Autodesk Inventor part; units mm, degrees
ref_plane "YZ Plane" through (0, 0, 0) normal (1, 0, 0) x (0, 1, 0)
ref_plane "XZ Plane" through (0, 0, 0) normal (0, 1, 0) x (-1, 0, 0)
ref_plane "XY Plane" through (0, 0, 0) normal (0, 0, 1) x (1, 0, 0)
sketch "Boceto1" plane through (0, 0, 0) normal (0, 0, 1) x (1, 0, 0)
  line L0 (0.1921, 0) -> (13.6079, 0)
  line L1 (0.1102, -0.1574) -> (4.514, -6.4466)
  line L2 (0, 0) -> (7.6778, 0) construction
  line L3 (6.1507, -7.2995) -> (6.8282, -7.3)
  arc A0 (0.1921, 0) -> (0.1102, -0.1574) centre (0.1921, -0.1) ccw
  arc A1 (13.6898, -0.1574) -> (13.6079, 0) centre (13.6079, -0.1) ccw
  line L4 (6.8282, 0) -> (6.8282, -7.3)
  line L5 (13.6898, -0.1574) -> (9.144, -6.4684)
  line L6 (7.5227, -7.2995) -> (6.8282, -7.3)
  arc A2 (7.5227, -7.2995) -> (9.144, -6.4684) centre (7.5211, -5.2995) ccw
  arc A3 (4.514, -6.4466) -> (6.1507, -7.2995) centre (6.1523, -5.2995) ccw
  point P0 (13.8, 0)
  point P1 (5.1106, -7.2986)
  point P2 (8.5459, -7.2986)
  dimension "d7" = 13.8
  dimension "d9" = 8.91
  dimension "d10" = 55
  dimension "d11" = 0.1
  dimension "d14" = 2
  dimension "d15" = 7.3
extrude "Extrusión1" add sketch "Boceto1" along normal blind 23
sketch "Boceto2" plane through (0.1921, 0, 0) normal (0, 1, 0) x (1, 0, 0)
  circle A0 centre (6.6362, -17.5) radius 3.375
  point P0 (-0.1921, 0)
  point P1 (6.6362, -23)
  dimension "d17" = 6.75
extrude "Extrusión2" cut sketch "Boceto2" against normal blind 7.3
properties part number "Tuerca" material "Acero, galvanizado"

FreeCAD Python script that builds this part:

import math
import FreeCAD as App
import Part
import Sketcher

V = App.Vector
Q = App.Units.Quantity

doc = App.newDocument("Part")
body = doc.addObject("PartDesign::Body", "Body")

sketch1 = body.newObject("Sketcher::SketchObject", "Sketch")
sketch1.AttachmentSupport = (doc.getObject("XY_Plane"), [""])
sketch1.MapMode = "FlatFace"
sketch1.addGeometry([
    Part.ArcOfCircle(Part.Circle(V(0.19, -0.1, 0), V(0, 0, 1), 0.1), math.radians(90), math.radians(215)),
    Part.LineSegment(V(0.11, -0.16, 0), V(4.51, -6.45, 0)),
    Part.ArcOfCircle(Part.Circle(V(6.15, -5.3, 0), V(0, 0, 1), 2), math.radians(-145), math.radians(-90)),
    Part.LineSegment(V(6.15, -7.3, 0), V(6.83, -7.3, 0)),
    Part.LineSegment(V(6.83, -7.3, 0), V(7.52, -7.3, 0)),
    Part.ArcOfCircle(Part.Circle(V(7.52, -5.3, 0), V(0, 0, 1), 2), math.radians(-90), math.radians(-36)),
    Part.LineSegment(V(9.14, -6.47, 0), V(13.69, -0.16, 0)),
    Part.ArcOfCircle(Part.Circle(V(13.61, -0.1, 0), V(0, 0, 1), 0.1), math.radians(-35), math.radians(90)),
    Part.LineSegment(V(13.61, 0, 0), V(0.19, 0, 0)),
], False)
sketch1.addConstraint([
    Sketcher.Constraint("Tangent", 0, 2, 1, 1),
    Sketcher.Constraint("Tangent", 1, 2, 2, 1),
    Sketcher.Constraint("Tangent", 2, 2, 3, 1),
    Sketcher.Constraint("Coincident", 3, 2, 4, 1),
    Sketcher.Constraint("Tangent", 4, 2, 5, 1),
    Sketcher.Constraint("Tangent", 5, 2, 6, 1),
    Sketcher.Constraint("Coincident", 6, 2, 7, 1),
    Sketcher.Constraint("Tangent", 7, 2, 8, 1),
    Sketcher.Constraint("Tangent", 8, 2, 0, 1),
    Sketcher.Constraint("Horizontal", 8),
    Sketcher.Constraint("Equal", 2, 5),
    Sketcher.Constraint("Equal", 0, 7),
    Sketcher.Constraint("PointOnObject", 7, 2, -1),
    Sketcher.Constraint("Horizontal", 2, 3, 5, 3),
    Sketcher.Constraint("Horizontal", 0, 2, 6, 2),
    Sketcher.Constraint("Radius", 2, Q("2 mm")),
    Sketcher.Constraint("Radius", 0, Q("0.1 mm")),
    Sketcher.Constraint("Angle", 1, Q("-54.9997 deg")),
    Sketcher.Constraint("DistanceY", 3, 2, -1, 1, Q("7.3 mm")),
    Sketcher.Constraint("DistanceY", 2, 2, -1, 1, Q("7.2995 mm")),
    Sketcher.Constraint("DistanceX", 8, 2, 8, 1, Q("13.4158 mm")),
    Sketcher.Constraint("DistanceX", -1, 1, 0, 3, Q("0.192 mm")),
    Sketcher.Constraint("DistanceX", -1, 1, 5, 3, Q("7.521 mm")),
    Sketcher.Constraint("DistanceX", 2, 3, 3, 2, Q("0.676 mm")),
])
pad1 = body.newObject("PartDesign::Pad", "Pad")
pad1.Profile = sketch1
pad1.Length = 23

sketch2 = body.newObject("Sketcher::SketchObject", "Sketch001")
sketch2.AttachmentSupport = (doc.getObject("XZ_Plane"), [""])
sketch2.MapMode = "FlatFace"
sketch2.addGeometry(Part.Circle(V(6.8, 17.5, 0), V(0, 0, 1), 3.4), False)
sketch2.addConstraint([
    Sketcher.Constraint("Diameter", 0, Q("6.75 mm")),
    Sketcher.Constraint("DistanceY", -1, 1, 0, 3, Q("17.5 mm")),
    Sketcher.Constraint("DistanceX", -1, 1, 0, 3, Q("6.8283 mm")),
])
pocket1 = body.newObject("PartDesign::Pocket", "Pocket")
pocket1.Profile = sketch2
pocket1.Length = 7.3
pocket1.Reversed = True

doc.recompute()
